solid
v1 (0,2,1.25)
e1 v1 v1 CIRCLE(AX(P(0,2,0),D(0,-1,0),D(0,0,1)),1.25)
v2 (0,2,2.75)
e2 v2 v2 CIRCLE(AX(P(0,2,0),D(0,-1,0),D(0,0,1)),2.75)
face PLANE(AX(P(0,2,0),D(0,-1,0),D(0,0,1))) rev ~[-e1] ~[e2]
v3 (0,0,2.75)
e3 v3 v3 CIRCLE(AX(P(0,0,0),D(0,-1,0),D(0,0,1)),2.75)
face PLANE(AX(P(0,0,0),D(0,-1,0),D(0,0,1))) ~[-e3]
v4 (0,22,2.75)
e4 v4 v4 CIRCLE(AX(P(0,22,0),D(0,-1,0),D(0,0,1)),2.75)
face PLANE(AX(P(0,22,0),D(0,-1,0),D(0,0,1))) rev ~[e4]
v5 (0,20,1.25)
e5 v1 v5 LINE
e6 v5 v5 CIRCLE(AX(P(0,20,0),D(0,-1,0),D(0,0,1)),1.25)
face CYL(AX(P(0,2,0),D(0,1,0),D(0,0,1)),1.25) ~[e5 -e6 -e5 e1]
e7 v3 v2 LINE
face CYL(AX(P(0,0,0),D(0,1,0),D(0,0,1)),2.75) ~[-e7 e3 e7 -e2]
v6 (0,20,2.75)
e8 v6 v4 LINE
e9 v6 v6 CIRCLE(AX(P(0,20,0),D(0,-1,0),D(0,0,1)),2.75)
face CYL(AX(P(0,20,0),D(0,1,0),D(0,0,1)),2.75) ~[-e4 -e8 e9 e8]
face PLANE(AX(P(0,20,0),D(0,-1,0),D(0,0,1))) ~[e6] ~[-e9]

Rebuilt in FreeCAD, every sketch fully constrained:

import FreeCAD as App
import Part
import Sketcher

V = App.Vector
Q = App.Units.Quantity

doc = App.newDocument("Part")
body = doc.addObject("PartDesign::Body", "Body")

# Sketch on YZ plane
sketch1 = body.newObject("Sketcher::SketchObject", "Sketch")
sketch1.AttachmentSupport = (doc.getObject("YZ_Plane"), [""])
sketch1.MapMode = "FlatFace"
sketch1.addGeometry(Part.LineSegment(V(0, 2.75, 0), V(0, 0, 0)), False)
sketch1.addGeometry(Part.LineSegment(V(0, 0, 0), V(22, 0, 0)), False)
sketch1.addGeometry(Part.LineSegment(V(22, 0, 0), V(22, 2.75, 0)), False)
sketch1.addGeometry(Part.LineSegment(V(22, 2.75, 0), V(20, 2.75, 0)), False)
sketch1.addGeometry(Part.LineSegment(V(20, 2.75, 0), V(20, 1.25, 0)), False)
sketch1.addGeometry(Part.LineSegment(V(20, 1.25, 0), V(2, 1.25, 0)), False)
sketch1.addGeometry(Part.LineSegment(V(2, 1.25, 0), V(2, 2.75, 0)), False)
sketch1.addGeometry(Part.LineSegment(V(2, 2.75, 0), V(0, 2.75, 0)), False)
sketch1.addConstraint(Sketcher.Constraint("Coincident", 0, 2, 1, 1))
sketch1.addConstraint(Sketcher.Constraint("Coincident", 1, 2, 2, 1))
sketch1.addConstraint(Sketcher.Constraint("Coincident", 2, 2, 3, 1))
sketch1.addConstraint(Sketcher.Constraint("Coincident", 3, 2, 4, 1))
sketch1.addConstraint(Sketcher.Constraint("Coincident", 4, 2, 5, 1))
sketch1.addConstraint(Sketcher.Constraint("Coincident", 5, 2, 6, 1))
sketch1.addConstraint(Sketcher.Constraint("Coincident", 6, 2, 7, 1))
sketch1.addConstraint(Sketcher.Constraint("Coincident", 7, 2, 0, 1))
sketch1.addConstraint(Sketcher.Constraint("Vertical", 0))
sketch1.addConstraint(Sketcher.Constraint("Horizontal", 1))
sketch1.addConstraint(Sketcher.Constraint("Vertical", 2))
sketch1.addConstraint(Sketcher.Constraint("Horizontal", 3))
sketch1.addConstraint(Sketcher.Constraint("Vertical", 4))
sketch1.addConstraint(Sketcher.Constraint("Horizontal", 5))
sketch1.addConstraint(Sketcher.Constraint("Vertical", 6))
sketch1.addConstraint(Sketcher.Constraint("Horizontal", 7))
sketch1.addConstraint(Sketcher.Constraint("Coincident", 0, 2, -1, 1))
sketch1.addConstraint(Sketcher.Constraint("Horizontal", 3, 2, 6, 2))
sketch1.addConstraint(Sketcher.Constraint("Equal", 3, 7))
sketch1.addConstraint(Sketcher.Constraint("DistanceX", 3, 2, 3, 1, Q("2 mm")))
sketch1.addConstraint(Sketcher.Constraint("DistanceX", 5, 2, 5, 1, Q("18 mm")))
sketch1.addConstraint(Sketcher.Constraint("DistanceY", 4, 2, 4, 1, Q("1.5 mm")))
sketch1.addConstraint(Sketcher.Constraint("DistanceY", -1, 1, 4, 2, Q("1.25 mm")))
revolution = body.newObject("PartDesign::Revolution", "Revolution")
revolution.Profile = sketch1
revolution.ReferenceAxis = (sketch1, ["H_Axis"])
revolution.Angle = 360

doc.recompute()
